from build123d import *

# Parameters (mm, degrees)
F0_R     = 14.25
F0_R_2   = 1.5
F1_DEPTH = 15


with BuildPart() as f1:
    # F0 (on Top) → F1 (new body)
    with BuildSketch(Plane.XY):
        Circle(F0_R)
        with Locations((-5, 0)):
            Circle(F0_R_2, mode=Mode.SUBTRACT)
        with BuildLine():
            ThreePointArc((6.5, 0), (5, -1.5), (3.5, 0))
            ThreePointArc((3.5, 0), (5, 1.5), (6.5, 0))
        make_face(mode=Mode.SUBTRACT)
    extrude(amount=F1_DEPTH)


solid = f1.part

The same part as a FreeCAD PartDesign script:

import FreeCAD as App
import Part
import Sketcher

V = App.Vector
Q = App.Units.Quantity

doc = App.newDocument("Part")
body = doc.addObject("PartDesign::Body", "Body")

# Sketch on XY plane
sketch1 = body.newObject("Sketcher::SketchObject", "Sketch")
sketch1.AttachmentSupport = (doc.getObject("XY_Plane"), [""])
sketch1.MapMode = "FlatFace"
sketch1.addGeometry([
    Part.Circle(V(0, 0, 0), V(0, 0, 1), 14.25),
    Part.Circle(V(-5, 0, 0), V(0, 0, 1), 1.5),
    Part.Circle(V(5, 0, 0), V(0, 0, 1), 1.5),
], False)
sketch1.addConstraint([
    Sketcher.Constraint("Coincident", 0, 3, -1, 1),
    Sketcher.Constraint("Equal", 1, 2),
    Sketcher.Constraint("Symmetric", 1, 3, 2, 3, -1, 1),
    Sketcher.Constraint("PointOnObject", 1, 3, -1),
    Sketcher.Constraint("Diameter", 1, Q("3 mm")),
    Sketcher.Constraint("Diameter", 0, Q("28.5 mm")),
    Sketcher.Constraint("DistanceX", 1, 3, -1, 1, Q("5 mm")),
])
pad1 = body.newObject("PartDesign::Pad", "Pad")
pad1.Profile = sketch1
pad1.Length = 15

doc.recompute()
